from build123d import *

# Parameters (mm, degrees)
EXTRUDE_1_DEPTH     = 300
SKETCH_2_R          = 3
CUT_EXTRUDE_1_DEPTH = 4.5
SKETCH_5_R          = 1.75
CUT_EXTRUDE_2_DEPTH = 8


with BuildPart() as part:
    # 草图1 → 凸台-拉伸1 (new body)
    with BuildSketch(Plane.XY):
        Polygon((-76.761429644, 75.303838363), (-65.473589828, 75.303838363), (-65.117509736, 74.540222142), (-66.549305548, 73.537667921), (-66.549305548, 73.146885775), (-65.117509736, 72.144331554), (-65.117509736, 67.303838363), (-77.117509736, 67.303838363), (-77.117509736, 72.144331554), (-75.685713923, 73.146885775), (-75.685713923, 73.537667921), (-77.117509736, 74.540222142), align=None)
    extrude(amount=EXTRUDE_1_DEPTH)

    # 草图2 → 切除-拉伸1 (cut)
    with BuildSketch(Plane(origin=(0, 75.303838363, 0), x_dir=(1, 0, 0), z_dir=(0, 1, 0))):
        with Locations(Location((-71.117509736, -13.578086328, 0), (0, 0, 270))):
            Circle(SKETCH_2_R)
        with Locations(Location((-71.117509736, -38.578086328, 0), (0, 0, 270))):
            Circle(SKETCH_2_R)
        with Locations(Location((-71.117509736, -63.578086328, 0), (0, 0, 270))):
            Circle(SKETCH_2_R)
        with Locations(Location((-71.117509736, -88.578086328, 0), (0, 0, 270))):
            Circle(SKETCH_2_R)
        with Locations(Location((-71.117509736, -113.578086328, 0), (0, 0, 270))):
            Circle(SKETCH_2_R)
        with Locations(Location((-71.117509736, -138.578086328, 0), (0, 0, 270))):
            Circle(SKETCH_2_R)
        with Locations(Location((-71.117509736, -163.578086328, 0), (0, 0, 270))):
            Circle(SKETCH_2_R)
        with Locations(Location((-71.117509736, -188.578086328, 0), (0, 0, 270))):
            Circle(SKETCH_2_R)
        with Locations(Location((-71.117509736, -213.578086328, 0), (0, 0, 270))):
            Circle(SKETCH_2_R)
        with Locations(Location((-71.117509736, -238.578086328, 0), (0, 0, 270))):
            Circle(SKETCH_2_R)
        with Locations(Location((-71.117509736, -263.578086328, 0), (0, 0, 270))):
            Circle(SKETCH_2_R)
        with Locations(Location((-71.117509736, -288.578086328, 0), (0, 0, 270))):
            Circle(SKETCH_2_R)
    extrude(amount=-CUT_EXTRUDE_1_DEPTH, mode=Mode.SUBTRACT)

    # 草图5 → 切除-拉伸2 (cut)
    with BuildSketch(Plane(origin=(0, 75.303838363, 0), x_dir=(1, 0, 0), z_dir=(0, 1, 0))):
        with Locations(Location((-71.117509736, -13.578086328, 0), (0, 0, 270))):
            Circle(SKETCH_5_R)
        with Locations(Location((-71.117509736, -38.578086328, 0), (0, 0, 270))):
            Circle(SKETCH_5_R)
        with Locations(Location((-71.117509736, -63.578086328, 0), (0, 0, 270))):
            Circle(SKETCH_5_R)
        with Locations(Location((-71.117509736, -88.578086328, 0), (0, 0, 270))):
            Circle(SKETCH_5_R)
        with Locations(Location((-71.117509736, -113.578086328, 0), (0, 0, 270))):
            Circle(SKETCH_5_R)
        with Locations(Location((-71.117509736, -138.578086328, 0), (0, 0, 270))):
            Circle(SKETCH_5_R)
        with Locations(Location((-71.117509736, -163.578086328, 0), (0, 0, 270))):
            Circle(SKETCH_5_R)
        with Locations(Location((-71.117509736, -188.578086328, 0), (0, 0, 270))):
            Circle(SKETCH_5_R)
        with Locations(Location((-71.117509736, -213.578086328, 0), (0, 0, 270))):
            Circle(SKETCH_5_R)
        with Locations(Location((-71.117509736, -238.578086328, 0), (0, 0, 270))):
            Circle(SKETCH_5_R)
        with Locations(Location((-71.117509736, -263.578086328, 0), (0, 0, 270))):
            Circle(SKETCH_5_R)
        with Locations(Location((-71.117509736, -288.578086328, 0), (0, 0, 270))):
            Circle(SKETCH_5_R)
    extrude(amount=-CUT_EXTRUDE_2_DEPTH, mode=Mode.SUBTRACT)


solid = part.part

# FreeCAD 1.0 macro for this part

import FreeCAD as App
import Part
import Sketcher

V = App.Vector
Q = App.Units.Quantity


def add_polygon(sketch, points):
    """Adds a closed chain of lines whose ends are joined by coincident constraints."""
    first, n = sketch.GeometryCount, len(points)
    for a, b in zip(points, points[1:] + points[:1]):
        sketch.addGeometry(Part.LineSegment(App.Vector(*a, 0), App.Vector(*b, 0)), False)
    for i in range(n):
        sketch.addConstraint(Sketcher.Constraint("Coincident", first + i, 2, first + (i + 1) % n, 1))

doc = App.newDocument("Part")
body = doc.addObject("PartDesign::Body", "Body")

# Sketch on XY plane
sketch1 = doc.addObject("Sketcher::SketchObject", "Sketch")
body.addObject(sketch1)
sketch1.AttachmentSupport = (doc.XY_Plane, [""])
sketch1.MapMode = "FlatFace"
add_polygon(sketch1, [(-65.47, 75.3), (-76.76, 75.3), (-77.12, 74.54), (-75.69, 73.54), (-75.69, 73.15), (-77.12, 72.14), (-77.12, 67.3), (-65.12, 67.3), (-65.12, 72.14), (-66.55, 73.15), (-66.55, 73.54), (-65.12, 74.54)])  # lines 0-11
sketch1.addConstraint(Sketcher.Constraint("Horizontal", 0))
sketch1.addConstraint(Sketcher.Constraint("Vertical", 3))
sketch1.addConstraint(Sketcher.Constraint("Vertical", 5))
sketch1.addConstraint(Sketcher.Constraint("Horizontal", 6))
sketch1.addConstraint(Sketcher.Constraint("Vertical", 7))
sketch1.addConstraint(Sketcher.Constraint("Vertical", 9))
sketch1.addConstraint(Sketcher.Constraint("Parallel", 2, 8))
sketch1.addConstraint(Sketcher.Constraint("Parallel", 4, 10))
sketch1.addConstraint(Sketcher.Constraint("Horizontal", 4, 2, 7, 2))
sketch1.addConstraint(Sketcher.Constraint("Horizontal", 3, 2, 8, 2))
sketch1.addConstraint(Sketcher.Constraint("Horizontal", 2, 2, 9, 2))
sketch1.addConstraint(Sketcher.Constraint("Horizontal", 1, 2, 10, 2))
sketch1.addConstraint(Sketcher.Constraint("Vertical", 1, 2, 4, 2))
sketch1.addConstraint(Sketcher.Constraint("Vertical", 7, 2, 10, 2))
sketch1.addConstraint(Sketcher.Constraint("Equal", 1, 11))
sketch1.addConstraint(Sketcher.Constraint("DistanceX", 6, 1, 6, 2, Q("12 mm")))
sketch1.addConstraint(Sketcher.Constraint("Angle", 1, Q("-115 deg")))
sketch1.addConstraint(Sketcher.Constraint("Angle", 2, Q("-35 deg")))
sketch1.addConstraint(Sketcher.Constraint("DistanceY", 5, 2, 0, 2, Q("8 mm")))
sketch1.addConstraint(Sketcher.Constraint("Distance", 2, Q("1.7479 mm")))
sketch1.addConstraint(Sketcher.Constraint("DistanceX", 0, 2, 0, 1, Q("11.28784 mm")))
sketch1.addConstraint(Sketcher.Constraint("DistanceY", 3, 2, 3, 1, Q("0.390782 mm")))
sketch1.addConstraint(Sketcher.Constraint("DistanceX", 0, 2, -1, 1, Q("76.76143 mm")))
sketch1.addConstraint(Sketcher.Constraint("DistanceY", -1, 1, 0, 2, Q("75.303838 mm")))
pad1 = doc.addObject("PartDesign::Pad", "Pad")
body.addObject(pad1)
pad1.Profile = sketch1
pad1.Length = 300

# Sketch on XZ plane
sketch2 = doc.addObject("Sketcher::SketchObject", "Sketch001")
body.addObject(sketch2)
sketch2.AttachmentSupport = (doc.XZ_Plane, [""])
sketch2.MapMode = "FlatFace"
sketch2.AttachmentOffset = App.Placement(V(0, 0, -75.303838), App.Rotation())
sketch2.addGeometry(Part.Circle(V(-71.1, 13.6, 0), V(0, 0, 1), 3), False)
sketch2.addGeometry(Part.Circle(V(-71.1, 38.6, 0), V(0, 0, 1), 3), False)
sketch2.addGeometry(Part.Circle(V(-71.1, 63.6, 0), V(0, 0, 1), 3), False)
sketch2.addGeometry(Part.Circle(V(-71.1, 88.6, 0), V(0, 0, 1), 3), False)
sketch2.addGeometry(Part.Circle(V(-71.1, 113.6, 0), V(0, 0, 1), 3), False)
sketch2.addGeometry(Part.Circle(V(-71.1, 138.6, 0), V(0, 0, 1), 3), False)
sketch2.addGeometry(Part.Circle(V(-71.1, 163.6, 0), V(0, 0, 1), 3), False)
sketch2.addGeometry(Part.Circle(V(-71.1, 188.6, 0), V(0, 0, 1), 3), False)
sketch2.addGeometry(Part.Circle(V(-71.1, 213.6, 0), V(0, 0, 1), 3), False)
sketch2.addGeometry(Part.Circle(V(-71.1, 238.6, 0), V(0, 0, 1), 3), False)
sketch2.addGeometry(Part.Circle(V(-71.1, 263.6, 0), V(0, 0, 1), 3), False)
sketch2.addGeometry(Part.Circle(V(-71.1, 288.6, 0), V(0, 0, 1), 3), False)
sketch2.addConstraint(Sketcher.Constraint("Equal", 0, 1))
sketch2.addConstraint(Sketcher.Constraint("Equal", 1, 2))
sketch2.addConstraint(Sketcher.Constraint("Equal", 2, 3))
sketch2.addConstraint(Sketcher.Constraint("Equal", 3, 4))
sketch2.addConstraint(Sketcher.Constraint("Equal", 4, 5))
sketch2.addConstraint(Sketcher.Constraint("Equal", 5, 6))
sketch2.addConstraint(Sketcher.Constraint("Equal", 6, 7))
sketch2.addConstraint(Sketcher.Constraint("Equal", 7, 8))
sketch2.addConstraint(Sketcher.Constraint("Equal", 8, 9))
sketch2.addConstraint(Sketcher.Constraint("Equal", 9, 10))
sketch2.addConstraint(Sketcher.Constraint("Equal", 10, 11))
sketch2.addConstraint(Sketcher.Constraint("Vertical", 0, 3, 1, 3))
sketch2.addConstraint(Sketcher.Constraint("Vertical", 1, 3, 2, 3))
sketch2.addConstraint(Sketcher.Constraint("Vertical", 2, 3, 3, 3))
sketch2.addConstraint(Sketcher.Constraint("Vertical", 3, 3, 4, 3))
sketch2.addConstraint(Sketcher.Constraint("Vertical", 4, 3, 5, 3))
sketch2.addConstraint(Sketcher.Constraint("Vertical", 5, 3, 6, 3))
sketch2.addConstraint(Sketcher.Constraint("Vertical", 6, 3, 7, 3))
sketch2.addConstraint(Sketcher.Constraint("Vertical", 7, 3, 8, 3))
sketch2.addConstraint(Sketcher.Constraint("Vertical", 8, 3, 9, 3))
sketch2.addConstraint(Sketcher.Constraint("Vertical", 9, 3, 10, 3))
sketch2.addConstraint(Sketcher.Constraint("Vertical", 10, 3, 11, 3))
sketch2.addConstraint(Sketcher.Constraint("Diameter", 0, Q("6 mm")))
sketch2.addConstraint(Sketcher.Constraint("DistanceY", 0, 3, 1, 3, Q("25 mm")))
sketch2.addConstraint(Sketcher.Constraint("DistanceY", 1, 3, 2, 3, Q("25 mm")))
sketch2.addConstraint(Sketcher.Constraint("DistanceY", 2, 3, 3, 3, Q("25 mm")))
sketch2.addConstraint(Sketcher.Constraint("DistanceY", 3, 3, 4, 3, Q("25 mm")))
sketch2.addConstraint(Sketcher.Constraint("DistanceY", 4, 3, 5, 3, Q("25 mm")))
sketch2.addConstraint(Sketcher.Constraint("DistanceY", 5, 3, 6, 3, Q("25 mm")))
sketch2.addConstraint(Sketcher.Constraint("DistanceY", 6, 3, 7, 3, Q("25 mm")))
sketch2.addConstraint(Sketcher.Constraint("DistanceY", 7, 3, 8, 3, Q("25 mm")))
sketch2.addConstraint(Sketcher.Constraint("DistanceY", 8, 3, 9, 3, Q("25 mm")))
sketch2.addConstraint(Sketcher.Constraint("DistanceY", 9, 3, 10, 3, Q("25 mm")))
sketch2.addConstraint(Sketcher.Constraint("DistanceY", 10, 3, 11, 3, Q("25 mm")))
sketch2.addConstraint(Sketcher.Constraint("DistanceX", 0, 3, -1, 1, Q("71.11751 mm")))
sketch2.addConstraint(Sketcher.Constraint("DistanceY", -1, 1, 0, 3, Q("13.578086 mm")))
pocket1 = doc.addObject("PartDesign::Pocket", "Pocket")
body.addObject(pocket1)
pocket1.Profile = sketch2
pocket1.Length = 4.5
pocket1.Reversed = True

# Sketch on XZ plane
sketch3 = doc.addObject("Sketcher::SketchObject", "Sketch002")
body.addObject(sketch3)
sketch3.AttachmentSupport = (doc.XZ_Plane, [""])
sketch3.MapMode = "FlatFace"
sketch3.AttachmentOffset = App.Placement(V(0, 0, -75.303838), App.Rotation())
sketch3.addGeometry(Part.Circle(V(-71.1, 13.6, 0), V(0, 0, 1), 1.8), False)
sketch3.addGeometry(Part.Circle(V(-71.1, 38.6, 0), V(0, 0, 1), 1.8), False)
sketch3.addGeometry(Part.Circle(V(-71.1, 63.6, 0), V(0, 0, 1), 1.8), False)
sketch3.addGeometry(Part.Circle(V(-71.1, 88.6, 0), V(0, 0, 1), 1.8), False)
sketch3.addGeometry(Part.Circle(V(-71.1, 113.6, 0), V(0, 0, 1), 1.8), False)
sketch3.addGeometry(Part.Circle(V(-71.1, 138.6, 0), V(0, 0, 1), 1.8), False)
sketch3.addGeometry(Part.Circle(V(-71.1, 163.6, 0), V(0, 0, 1), 1.8), False)
sketch3.addGeometry(Part.Circle(V(-71.1, 188.6, 0), V(0, 0, 1), 1.8), False)
sketch3.addGeometry(Part.Circle(V(-71.1, 213.6, 0), V(0, 0, 1), 1.8), False)
sketch3.addGeometry(Part.Circle(V(-71.1, 238.6, 0), V(0, 0, 1), 1.8), False)
sketch3.addGeometry(Part.Circle(V(-71.1, 263.6, 0), V(0, 0, 1), 1.8), False)
sketch3.addGeometry(Part.Circle(V(-71.1, 288.6, 0), V(0, 0, 1), 1.8), False)
sketch3.addConstraint(Sketcher.Constraint("Equal", 0, 1))
sketch3.addConstraint(Sketcher.Constraint("Equal", 1, 2))
sketch3.addConstraint(Sketcher.Constraint("Equal", 2, 3))
sketch3.addConstraint(Sketcher.Constraint("Equal", 3, 4))
sketch3.addConstraint(Sketcher.Constraint("Equal", 4, 5))
sketch3.addConstraint(Sketcher.Constraint("Equal", 5, 6))
sketch3.addConstraint(Sketcher.Constraint("Equal", 6, 7))
sketch3.addConstraint(Sketcher.Constraint("Equal", 7, 8))
sketch3.addConstraint(Sketcher.Constraint("Equal", 8, 9))
sketch3.addConstraint(Sketcher.Constraint("Equal", 9, 10))
sketch3.addConstraint(Sketcher.Constraint("Equal", 10, 11))
sketch3.addConstraint(Sketcher.Constraint("Vertical", 0, 3, 1, 3))
sketch3.addConstraint(Sketcher.Constraint("Vertical", 1, 3, 2, 3))
sketch3.addConstraint(Sketcher.Constraint("Vertical", 2, 3, 3, 3))
sketch3.addConstraint(Sketcher.Constraint("Vertical", 3, 3, 4, 3))
sketch3.addConstraint(Sketcher.Constraint("Vertical", 4, 3, 5, 3))
sketch3.addConstraint(Sketcher.Constraint("Vertical", 5, 3, 6, 3))
sketch3.addConstraint(Sketcher.Constraint("Vertical", 6, 3, 7, 3))
sketch3.addConstraint(Sketcher.Constraint("Vertical", 7, 3, 8, 3))
sketch3.addConstraint(Sketcher.Constraint("Vertical", 8, 3, 9, 3))
sketch3.addConstraint(Sketcher.Constraint("Vertical", 9, 3, 10, 3))
sketch3.addConstraint(Sketcher.Constraint("Vertical", 10, 3, 11, 3))
sketch3.addConstraint(Sketcher.Constraint("Diameter", 0, Q("3.5 mm")))
sketch3.addConstraint(Sketcher.Constraint("DistanceY", 0, 3, 1, 3, Q("25 mm")))
sketch3.addConstraint(Sketcher.Constraint("DistanceY", 1, 3, 2, 3, Q("25 mm")))
sketch3.addConstraint(Sketcher.Constraint("DistanceY", 2, 3, 3, 3, Q("25 mm")))
sketch3.addConstraint(Sketcher.Constraint("DistanceY", 3, 3, 4, 3, Q("25 mm")))
sketch3.addConstraint(Sketcher.Constraint("DistanceY", 4, 3, 5, 3, Q("25 mm")))
sketch3.addConstraint(Sketcher.Constraint("DistanceY", 5, 3, 6, 3, Q("25 mm")))
sketch3.addConstraint(Sketcher.Constraint("DistanceY", 6, 3, 7, 3, Q("25 mm")))
sketch3.addConstraint(Sketcher.Constraint("DistanceY", 7, 3, 8, 3, Q("25 mm")))
sketch3.addConstraint(Sketcher.Constraint("DistanceY", 8, 3, 9, 3, Q("25 mm")))
sketch3.addConstraint(Sketcher.Constraint("DistanceY", 9, 3, 10, 3, Q("25 mm")))
sketch3.addConstraint(Sketcher.Constraint("DistanceY", 10, 3, 11, 3, Q("25 mm")))
sketch3.addConstraint(Sketcher.Constraint("DistanceX", 0, 3, -1, 1, Q("71.11751 mm")))
sketch3.addConstraint(Sketcher.Constraint("DistanceY", -1, 1, 0, 3, Q("13.578086 mm")))
pocket2 = doc.addObject("PartDesign::Pocket", "Pocket001")
body.addObject(pocket2)
pocket2.Profile = sketch3
pocket2.Length = 8
pocket2.Reversed = True

doc.recompute()
